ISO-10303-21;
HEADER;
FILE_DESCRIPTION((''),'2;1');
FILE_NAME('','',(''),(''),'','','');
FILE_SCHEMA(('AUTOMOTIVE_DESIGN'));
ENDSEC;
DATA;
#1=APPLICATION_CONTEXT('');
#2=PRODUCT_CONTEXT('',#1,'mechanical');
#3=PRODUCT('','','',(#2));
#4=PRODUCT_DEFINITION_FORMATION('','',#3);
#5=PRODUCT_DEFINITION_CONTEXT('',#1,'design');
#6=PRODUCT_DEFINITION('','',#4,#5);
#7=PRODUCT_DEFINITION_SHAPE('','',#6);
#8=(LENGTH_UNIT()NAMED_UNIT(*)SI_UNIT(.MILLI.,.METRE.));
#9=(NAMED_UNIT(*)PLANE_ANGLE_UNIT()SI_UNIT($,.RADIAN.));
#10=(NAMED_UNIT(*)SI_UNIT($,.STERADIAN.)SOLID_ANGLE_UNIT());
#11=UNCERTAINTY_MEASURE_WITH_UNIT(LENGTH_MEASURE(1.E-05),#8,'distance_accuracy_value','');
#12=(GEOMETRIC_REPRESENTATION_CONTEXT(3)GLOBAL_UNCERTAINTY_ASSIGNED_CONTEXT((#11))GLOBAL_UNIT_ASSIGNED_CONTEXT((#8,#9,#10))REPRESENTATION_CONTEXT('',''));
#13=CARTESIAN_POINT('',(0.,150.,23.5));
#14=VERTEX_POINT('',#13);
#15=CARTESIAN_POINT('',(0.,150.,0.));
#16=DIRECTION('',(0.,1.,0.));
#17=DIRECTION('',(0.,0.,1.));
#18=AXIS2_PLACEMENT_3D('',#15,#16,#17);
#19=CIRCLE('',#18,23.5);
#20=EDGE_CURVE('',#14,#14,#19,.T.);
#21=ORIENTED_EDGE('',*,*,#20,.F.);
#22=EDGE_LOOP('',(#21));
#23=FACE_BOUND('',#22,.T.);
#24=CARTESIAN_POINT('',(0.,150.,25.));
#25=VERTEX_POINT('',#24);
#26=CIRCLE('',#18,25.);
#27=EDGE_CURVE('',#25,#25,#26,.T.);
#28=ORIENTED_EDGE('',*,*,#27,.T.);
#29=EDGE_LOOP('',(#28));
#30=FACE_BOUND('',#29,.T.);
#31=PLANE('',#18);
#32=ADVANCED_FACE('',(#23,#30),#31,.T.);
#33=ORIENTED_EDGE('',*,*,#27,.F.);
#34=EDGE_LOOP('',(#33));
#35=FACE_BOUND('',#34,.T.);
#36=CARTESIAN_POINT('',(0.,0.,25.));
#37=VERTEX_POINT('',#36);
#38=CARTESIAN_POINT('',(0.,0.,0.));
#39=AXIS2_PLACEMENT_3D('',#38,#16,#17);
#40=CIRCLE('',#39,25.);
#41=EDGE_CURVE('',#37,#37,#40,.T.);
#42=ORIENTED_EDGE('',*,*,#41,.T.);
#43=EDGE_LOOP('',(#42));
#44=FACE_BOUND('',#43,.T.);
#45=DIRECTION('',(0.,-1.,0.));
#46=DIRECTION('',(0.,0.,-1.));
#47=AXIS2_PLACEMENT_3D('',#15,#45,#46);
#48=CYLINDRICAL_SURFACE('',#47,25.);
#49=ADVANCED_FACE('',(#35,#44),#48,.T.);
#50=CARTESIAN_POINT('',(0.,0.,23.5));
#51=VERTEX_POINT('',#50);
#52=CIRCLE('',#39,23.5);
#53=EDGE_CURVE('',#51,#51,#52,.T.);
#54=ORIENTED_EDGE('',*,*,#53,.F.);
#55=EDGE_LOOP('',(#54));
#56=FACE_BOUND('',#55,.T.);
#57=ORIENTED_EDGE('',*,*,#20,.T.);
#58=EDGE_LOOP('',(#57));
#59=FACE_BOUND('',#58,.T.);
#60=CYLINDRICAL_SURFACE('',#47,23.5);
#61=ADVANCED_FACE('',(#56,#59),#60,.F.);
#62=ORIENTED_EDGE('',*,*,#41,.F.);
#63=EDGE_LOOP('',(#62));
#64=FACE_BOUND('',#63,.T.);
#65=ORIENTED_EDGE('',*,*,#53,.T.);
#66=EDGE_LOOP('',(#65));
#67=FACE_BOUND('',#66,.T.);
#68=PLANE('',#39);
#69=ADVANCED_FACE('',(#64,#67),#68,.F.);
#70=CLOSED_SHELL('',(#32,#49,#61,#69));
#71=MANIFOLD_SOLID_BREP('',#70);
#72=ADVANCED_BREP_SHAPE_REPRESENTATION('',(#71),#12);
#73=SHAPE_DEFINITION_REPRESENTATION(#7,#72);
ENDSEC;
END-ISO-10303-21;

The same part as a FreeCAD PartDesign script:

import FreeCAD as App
import Part
import Sketcher
Q = App.Units.Quantity

doc = App.newDocument("Part")
body = doc.addObject("PartDesign::Body", "Body")

# Sketch on XZ plane
sketch1 = body.newObject("Sketcher::SketchObject", "Sketch")
sketch1.AttachmentSupport = (doc.getObject("XZ_Plane"), [""])
sketch1.MapMode = "FlatFace"
sketch1.addGeometry([
    Part.Circle(App.Vector(0, 0, 0), App.Vector(0, 0, 1), 25),
    Part.Circle(App.Vector(0, 0, 0), App.Vector(0, 0, 1), 24),
], False)
sketch1.addConstraint([
    Sketcher.Constraint("Coincident", 0, 3, -1, 1),
    Sketcher.Constraint("Coincident", 1, 3, -1, 1),
    Sketcher.Constraint("Diameter", 0, Q("50 mm")),
    Sketcher.Constraint("Diameter", 1, Q("47 mm")),
])
pad1 = body.newObject("PartDesign::Pad", "Pad")
pad1.Profile = sketch1
pad1.Length = 150
pad1.Reversed = True

doc.recompute()
